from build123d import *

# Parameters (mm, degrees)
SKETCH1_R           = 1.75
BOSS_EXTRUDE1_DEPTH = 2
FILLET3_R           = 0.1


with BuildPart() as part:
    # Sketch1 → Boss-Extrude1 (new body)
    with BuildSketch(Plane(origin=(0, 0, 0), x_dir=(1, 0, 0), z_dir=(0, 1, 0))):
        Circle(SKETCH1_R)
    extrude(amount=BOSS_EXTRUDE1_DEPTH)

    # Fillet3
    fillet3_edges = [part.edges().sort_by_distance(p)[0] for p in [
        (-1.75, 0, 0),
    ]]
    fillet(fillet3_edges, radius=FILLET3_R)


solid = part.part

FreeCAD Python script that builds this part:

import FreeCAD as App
import Part
import Sketcher


def edges_at(feature, points):
    """Names of the edges that pass closest to the given points."""
    edges = feature.Shape.Edges
    near = lambda p: min(range(len(edges)), key=lambda i: edges[i].distToShape(Part.Vertex(*p))[0])
    return sorted({f"Edge{near(p) + 1}" for p in points})

doc = App.newDocument("Part")
body = doc.addObject("PartDesign::Body", "Body")

# Sketch on XZ plane
sketch1 = body.newObject("Sketcher::SketchObject", "Sketch")
sketch1.AttachmentSupport = (doc.getObject("XZ_Plane"), [""])
sketch1.MapMode = "FlatFace"
sketch1.addGeometry(Part.Circle(App.Vector(0, 0, 0), App.Vector(0, 0, 1), 1.75), False)
sketch1.addConstraint([
    Sketcher.Constraint("Coincident", 0, 3, -1, 1),
    Sketcher.Constraint("Diameter", 0, 3.5),
])
pad1 = body.newObject("PartDesign::Pad", "Pad")
pad1.Profile = sketch1
pad1.Length = 2
pad1.Reversed = True
doc.recompute()

fillet = body.newObject("PartDesign::Fillet", "Fillet")
fillet.Base = (pad1, edges_at(pad1, [(-1.75, 0, 0)]))
fillet.Radius = 0.1

doc.recompute()
